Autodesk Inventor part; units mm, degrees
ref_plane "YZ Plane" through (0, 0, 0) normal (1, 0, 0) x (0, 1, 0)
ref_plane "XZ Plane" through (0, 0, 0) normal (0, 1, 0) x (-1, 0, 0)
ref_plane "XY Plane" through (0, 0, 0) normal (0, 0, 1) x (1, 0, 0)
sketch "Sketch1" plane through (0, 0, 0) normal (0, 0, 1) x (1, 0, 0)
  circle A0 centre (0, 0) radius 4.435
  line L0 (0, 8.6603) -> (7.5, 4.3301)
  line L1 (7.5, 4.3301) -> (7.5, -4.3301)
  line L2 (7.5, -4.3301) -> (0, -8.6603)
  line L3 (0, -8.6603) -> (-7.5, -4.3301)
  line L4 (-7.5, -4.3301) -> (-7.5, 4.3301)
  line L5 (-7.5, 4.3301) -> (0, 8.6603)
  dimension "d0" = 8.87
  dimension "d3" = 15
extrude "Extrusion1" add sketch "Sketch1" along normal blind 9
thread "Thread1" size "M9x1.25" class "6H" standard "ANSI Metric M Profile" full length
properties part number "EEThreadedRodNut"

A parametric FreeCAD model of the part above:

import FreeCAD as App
import Part
import Sketcher
Q = App.Units.Quantity


def add_polygon(sketch, points):
    """Adds a closed chain of lines whose ends are joined by coincident constraints."""
    first, n = sketch.GeometryCount, len(points)
    for a, b in zip(points, points[1:] + points[:1]):
        sketch.addGeometry(Part.LineSegment(App.Vector(*a, 0), App.Vector(*b, 0)), False)
    for i in range(n):
        sketch.addConstraint(Sketcher.Constraint("Coincident", first + i, 2, first + (i + 1) % n, 1))

doc = App.newDocument("Part")
params = doc.addObject("Spreadsheet::Sheet", "Params")
for row, (alias, value) in enumerate([
    ("sketch1_diameter", "8.87 mm"),
    ("pad1_length", "9 mm"),
], start=1):
    params.set(f"A{row}", alias)
    params.set(f"B{row}", "=" + value)
    params.setAlias(f"B{row}", alias)

body = doc.addObject("PartDesign::Body", "Body")

# Sketch on XY plane
sketch1 = body.newObject("Sketcher::SketchObject", "Sketch")
sketch1.AttachmentSupport = (doc.getObject("XY_Plane"), [""])
sketch1.MapMode = "FlatFace"
add_polygon(sketch1, [(7.5, 4.3301), (0, 8.6603), (-7.5, 4.3301), (-7.5, -4.3301), (0, -8.6603), (7.5, -4.3301)])  # lines 0-5
sketch1.addGeometry(Part.Circle(App.Vector(0, 0, 0), App.Vector(0, 0, 1), 4.435), False)  # 6
sketch1.addConstraint([
    Sketcher.Constraint("Vertical", 2),
    Sketcher.Constraint("Vertical", 5),
    Sketcher.Constraint("Coincident", 6, 3, -1, 1),
    Sketcher.Constraint("Symmetric", 0, 2, 3, 2, -1, 1),
    Sketcher.Constraint("Symmetric", 1, 2, 4, 2, -1, 1),
    Sketcher.Constraint("PointOnObject", 0, 2, -2),
    Sketcher.Constraint("Parallel", 0, 3),
    Sketcher.Constraint("Horizontal", 2, 2, 4, 2),
    Sketcher.Constraint("Diameter", 6, Q("8.87 mm")),
    Sketcher.Constraint("DistanceX", 2, 2, 4, 2, Q("15 mm")),
    Sketcher.Constraint("Angle", 0, Q("149.9996 deg")),
    Sketcher.Constraint("DistanceY", -1, 1, 1, 2, Q("4.33 mm")),
])
sketch1.setExpression("Constraints[14]", "Params.sketch1_diameter")
pad1 = body.newObject("PartDesign::Pad", "Pad")
pad1.Profile = sketch1
pad1.setExpression("Length", "Params.pad1_length")

doc.recompute()
